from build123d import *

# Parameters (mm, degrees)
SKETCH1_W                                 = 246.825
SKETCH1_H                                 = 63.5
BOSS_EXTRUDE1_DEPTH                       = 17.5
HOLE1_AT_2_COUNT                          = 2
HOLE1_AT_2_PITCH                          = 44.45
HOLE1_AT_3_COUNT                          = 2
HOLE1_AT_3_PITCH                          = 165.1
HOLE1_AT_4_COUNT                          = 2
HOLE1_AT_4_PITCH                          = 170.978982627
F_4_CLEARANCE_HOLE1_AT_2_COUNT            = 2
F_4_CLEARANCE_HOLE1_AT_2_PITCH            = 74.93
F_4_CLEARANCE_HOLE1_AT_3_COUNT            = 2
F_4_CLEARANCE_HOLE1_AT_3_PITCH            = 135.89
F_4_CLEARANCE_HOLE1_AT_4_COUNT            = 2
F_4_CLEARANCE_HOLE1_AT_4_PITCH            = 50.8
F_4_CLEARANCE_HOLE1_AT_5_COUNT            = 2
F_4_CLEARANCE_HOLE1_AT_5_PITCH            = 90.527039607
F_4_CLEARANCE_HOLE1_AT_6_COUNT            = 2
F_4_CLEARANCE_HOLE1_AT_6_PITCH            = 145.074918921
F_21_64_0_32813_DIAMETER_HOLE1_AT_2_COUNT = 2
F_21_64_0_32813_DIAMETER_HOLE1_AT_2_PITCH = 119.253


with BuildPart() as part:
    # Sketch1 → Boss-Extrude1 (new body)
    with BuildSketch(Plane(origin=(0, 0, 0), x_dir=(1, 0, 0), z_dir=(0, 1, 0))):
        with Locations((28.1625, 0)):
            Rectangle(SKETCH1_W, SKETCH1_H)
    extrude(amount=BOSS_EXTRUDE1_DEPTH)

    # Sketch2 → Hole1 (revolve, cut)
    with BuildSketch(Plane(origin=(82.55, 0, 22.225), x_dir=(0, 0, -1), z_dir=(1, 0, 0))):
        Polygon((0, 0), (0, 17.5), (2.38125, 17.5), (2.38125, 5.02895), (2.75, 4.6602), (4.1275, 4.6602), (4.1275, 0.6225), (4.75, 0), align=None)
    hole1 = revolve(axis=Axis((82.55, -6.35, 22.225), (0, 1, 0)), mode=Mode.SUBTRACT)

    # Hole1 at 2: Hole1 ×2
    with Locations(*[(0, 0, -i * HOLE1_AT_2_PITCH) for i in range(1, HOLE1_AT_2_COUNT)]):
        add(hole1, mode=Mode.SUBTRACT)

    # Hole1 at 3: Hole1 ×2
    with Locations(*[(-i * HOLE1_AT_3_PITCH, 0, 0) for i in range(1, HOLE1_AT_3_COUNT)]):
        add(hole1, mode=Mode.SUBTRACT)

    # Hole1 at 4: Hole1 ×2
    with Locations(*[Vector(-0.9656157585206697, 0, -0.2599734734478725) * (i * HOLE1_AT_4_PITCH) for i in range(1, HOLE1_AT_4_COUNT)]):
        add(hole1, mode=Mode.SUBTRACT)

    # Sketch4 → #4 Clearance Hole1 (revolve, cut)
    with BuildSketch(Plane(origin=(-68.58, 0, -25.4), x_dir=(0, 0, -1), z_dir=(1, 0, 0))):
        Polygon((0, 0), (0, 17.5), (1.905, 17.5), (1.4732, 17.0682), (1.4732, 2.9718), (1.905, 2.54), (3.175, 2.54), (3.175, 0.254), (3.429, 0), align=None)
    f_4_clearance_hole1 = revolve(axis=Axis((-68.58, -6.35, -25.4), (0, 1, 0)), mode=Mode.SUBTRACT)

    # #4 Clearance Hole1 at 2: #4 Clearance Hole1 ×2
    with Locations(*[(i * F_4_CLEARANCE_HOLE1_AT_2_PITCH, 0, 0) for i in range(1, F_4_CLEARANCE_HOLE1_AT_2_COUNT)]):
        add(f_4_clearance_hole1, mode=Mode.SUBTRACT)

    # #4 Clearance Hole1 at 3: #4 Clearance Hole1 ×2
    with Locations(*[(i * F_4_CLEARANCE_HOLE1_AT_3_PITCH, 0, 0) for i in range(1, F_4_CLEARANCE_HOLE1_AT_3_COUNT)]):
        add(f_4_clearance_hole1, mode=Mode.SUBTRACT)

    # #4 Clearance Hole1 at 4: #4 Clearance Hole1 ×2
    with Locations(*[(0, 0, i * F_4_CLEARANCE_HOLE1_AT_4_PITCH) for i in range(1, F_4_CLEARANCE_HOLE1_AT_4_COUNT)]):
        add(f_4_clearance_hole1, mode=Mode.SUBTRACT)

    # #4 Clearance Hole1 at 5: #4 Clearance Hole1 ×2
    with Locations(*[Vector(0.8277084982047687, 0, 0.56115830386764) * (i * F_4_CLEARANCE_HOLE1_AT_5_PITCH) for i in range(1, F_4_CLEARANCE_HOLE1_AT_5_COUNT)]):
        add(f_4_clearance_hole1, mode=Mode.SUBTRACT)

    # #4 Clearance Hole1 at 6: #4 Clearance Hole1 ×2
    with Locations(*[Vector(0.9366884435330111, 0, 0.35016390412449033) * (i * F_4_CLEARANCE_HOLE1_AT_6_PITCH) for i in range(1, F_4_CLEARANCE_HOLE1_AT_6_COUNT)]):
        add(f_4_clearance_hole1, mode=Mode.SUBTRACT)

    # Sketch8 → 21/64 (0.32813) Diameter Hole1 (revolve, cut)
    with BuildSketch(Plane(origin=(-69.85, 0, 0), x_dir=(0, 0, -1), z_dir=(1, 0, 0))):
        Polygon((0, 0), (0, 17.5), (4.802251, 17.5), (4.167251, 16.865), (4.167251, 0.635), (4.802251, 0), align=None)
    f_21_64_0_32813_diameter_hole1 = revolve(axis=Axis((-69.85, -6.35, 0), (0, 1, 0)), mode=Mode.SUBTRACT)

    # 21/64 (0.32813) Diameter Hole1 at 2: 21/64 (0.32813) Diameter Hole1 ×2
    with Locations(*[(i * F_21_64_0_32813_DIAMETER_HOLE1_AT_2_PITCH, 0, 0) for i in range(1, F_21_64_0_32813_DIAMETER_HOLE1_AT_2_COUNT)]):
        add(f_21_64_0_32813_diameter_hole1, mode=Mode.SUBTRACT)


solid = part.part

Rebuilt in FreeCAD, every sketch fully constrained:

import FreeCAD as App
import Part
import Sketcher
from FreeCAD import Vector
Q = App.Units.Quantity


def add_polygon(sketch, points):
    """Adds a closed chain of lines whose ends are joined by coincident constraints."""
    first, n = sketch.GeometryCount, len(points)
    for a, b in zip(points, points[1:] + points[:1]):
        sketch.addGeometry(Part.LineSegment(App.Vector(*a, 0), App.Vector(*b, 0)), False)
    for i in range(n):
        sketch.addConstraint(Sketcher.Constraint("Coincident", first + i, 2, first + (i + 1) % n, 1))

doc = App.newDocument("Part")
body = doc.addObject("PartDesign::Body", "Body")

sketch1 = doc.addObject("Sketcher::SketchObject", "Sketch")
body.addObject(sketch1)
sketch1.AttachmentSupport = (doc.XZ_Plane, [""])
sketch1.MapMode = "FlatFace"
add_polygon(sketch1, [(-95.25, -31.75), (-95.25, 31.75), (151.575, 31.75), (151.575, -31.75)])
sketch1.addConstraint([
    Sketcher.Constraint("Vertical", 0),
    Sketcher.Constraint("Horizontal", 1),
    Sketcher.Constraint("Vertical", 2),
    Sketcher.Constraint("Horizontal", 3),
    Sketcher.Constraint("DistanceY", 0, 1, 0, 2, Q("2.5 in")),
    Sketcher.Constraint("DistanceX", 0, 2, -1, 1, Q("3.75 in")),
    Sketcher.Constraint("DistanceY", -1, 1, 0, 2, Q("1.25 in")),
    Sketcher.Constraint("DistanceX", 1, 1, 1, 2, Q("246.825 mm")),
])
pad1 = doc.addObject("PartDesign::Pad", "Pad")
body.addObject(pad1)
pad1.Profile = sketch1
pad1.Length = 17.5
pad1.Reversed = True

sketch2 = doc.addObject("Sketcher::SketchObject", "Sketch001")
body.addObject(sketch2)
sketch2.AttachmentSupport = (doc.YZ_Plane, [""])
sketch2.MapMode = "FlatFace"
sketch2.AttachmentOffset = App.Placement(Vector(0, 0, 3.25 * 25.4), App.Rotation())
add_polygon(sketch2, [(17.5, 22.225), (0, 22.225), (0, 17.475), (0.6225, 18.0975), (4.6602, 18.0975), (4.6602, 19.475), (5.02895, 19.84375), (17.5, 19.84375)])
sketch2.addGeometry(Part.LineSegment(Vector(0, 22.225, 0), Vector(17.5, 22.225, 0)), True)
sketch2.addConstraint([
    Sketcher.Constraint("Horizontal", 0),
    Sketcher.Constraint("Vertical", 1),
    Sketcher.Constraint("Horizontal", 3),
    Sketcher.Constraint("Vertical", 4),
    Sketcher.Constraint("Horizontal", 6),
    Sketcher.Constraint("Vertical", 7),
    Sketcher.Constraint("Horizontal", 8),
    Sketcher.Constraint("Coincident", 8, 1, 0, 2),
    Sketcher.Constraint("PointOnObject", 0, 2, -2),
    Sketcher.Constraint("Parallel", 2, 5),
    Sketcher.Constraint("Vertical", 6, 2, 8, 2),
    Sketcher.Constraint("Angle", 2, Q("45 deg")),
    Sketcher.Constraint("DistanceY", 7, 1, 7, 2, Q("0.09375 in")),
    Sketcher.Constraint("DistanceY", -1, 1, 0, 2, Q("0.875 in")),
    Sketcher.Constraint("DistanceX", 0, 2, 0, 1, Q("17.5 mm")),
    Sketcher.Constraint("DistanceX", 3, 1, 3, 2, Q("4.0377 mm")),
    Sketcher.Constraint("DistanceY", 1, 2, 1, 1, Q("4.75 mm")),
    Sketcher.Constraint("DistanceY", 4, 1, 4, 2, Q("1.3775 mm")),
    Sketcher.Constraint("DistanceY", -1, 1, 2, 2, Q("0.7125 in")),
])
groove = doc.addObject("PartDesign::Groove", "Groove")
body.addObject(groove)
groove.Profile = sketch2
groove.ReferenceAxis = (sketch2, ["Axis0"])
groove.Angle = 360
doc.recompute()

linearpattern = doc.addObject("PartDesign::LinearPattern", "LinearPattern")
body.addObject(linearpattern)
linearpattern.Originals = [groove]
linearpattern.Direction = (doc.Z_Axis, [""])
linearpattern.Mode = "offset"
linearpattern.Offset = Q("1.75 in")
linearpattern.Occurrences = 2
linearpattern.Reversed = True
body.Tip = linearpattern
doc.recompute()

linearpattern2 = doc.addObject("PartDesign::LinearPattern", "LinearPattern001")
body.addObject(linearpattern2)
linearpattern2.Originals = [groove]
linearpattern2.Direction = (doc.X_Axis, [""])
linearpattern2.Mode = "offset"
linearpattern2.Offset = Q("6.5 in")
linearpattern2.Occurrences = 2
linearpattern2.Reversed = True
body.Tip = linearpattern2
doc.recompute()

datumline = doc.addObject("PartDesign::Line", "DatumLine")
body.addObject(datumline)
datumline.Placement = App.Placement(Vector(0, 0, 0), App.Rotation(Vector(0, 0, 1), Vector(-0.965615759, 0, -0.259973473)))
linearpattern3 = doc.addObject("PartDesign::LinearPattern", "LinearPattern002")
body.addObject(linearpattern3)
linearpattern3.Originals = [groove]
linearpattern3.Direction = (datumline, [""])
linearpattern3.Mode = "offset"
linearpattern3.Offset = 170.978983
linearpattern3.Occurrences = 2
body.Tip = linearpattern3

sketch3 = doc.addObject("Sketcher::SketchObject", "Sketch002")
body.addObject(sketch3)
sketch3.AttachmentSupport = (doc.YZ_Plane, [""])
sketch3.MapMode = "FlatFace"
sketch3.AttachmentOffset = App.Placement(Vector(0, 0, -2.7 * 25.4), App.Rotation())
add_polygon(sketch3, [(17.5, -25.4), (0, -25.4), (0, -28.829), (0.254, -28.575), (2.54, -28.575), (2.54, -27.305), (2.9718, -26.8732), (17.0682, -26.8732), (17.5, -27.305)])
sketch3.addGeometry(Part.LineSegment(Vector(0, -25.4, 0), Vector(17.5, -25.4, 0)), True)
sketch3.addConstraint([
    Sketcher.Constraint("Horizontal", 0),
    Sketcher.Constraint("Vertical", 1),
    Sketcher.Constraint("Horizontal", 3),
    Sketcher.Constraint("Vertical", 4),
    Sketcher.Constraint("Horizontal", 6),
    Sketcher.Constraint("Vertical", 8),
    Sketcher.Constraint("Horizontal", 9),
    Sketcher.Constraint("Coincident", 9, 1, 0, 2),
    Sketcher.Constraint("PointOnObject", 0, 2, -2),
    Sketcher.Constraint("Parallel", 2, 5),
    Sketcher.Constraint("Perpendicular", 5, 7),
    Sketcher.Constraint("Horizontal", 4, 2, 7, 2),
    Sketcher.Constraint("Vertical", 7, 2, 9, 2),
    Sketcher.Constraint("Equal", 5, 7),
    Sketcher.Constraint("DistanceY", 0, 2, -1, 1, Q("1 in")),
    Sketcher.Constraint("DistanceX", 3, 1, 3, 2, Q("0.09 in")),
    Sketcher.Constraint("DistanceY", 4, 1, 4, 2, Q("0.05 in")),
    Sketcher.Constraint("DistanceX", -1, 1, 3, 2, Q("0.1 in")),
    Sketcher.Constraint("DistanceY", 1, 2, 1, 1, Q("0.135 in")),
    Sketcher.Constraint("DistanceX", -1, 1, 5, 2, Q("0.117 in")),
    Sketcher.Constraint("DistanceX", 0, 2, 0, 1, Q("17.5 mm")),
])
groove2 = doc.addObject("PartDesign::Groove", "Groove001")
body.addObject(groove2)
groove2.Profile = sketch3
groove2.ReferenceAxis = (sketch3, ["Axis0"])
groove2.Angle = 360
doc.recompute()

linearpattern4 = doc.addObject("PartDesign::LinearPattern", "LinearPattern003")
body.addObject(linearpattern4)
linearpattern4.Originals = [groove2]
linearpattern4.Direction = (doc.X_Axis, [""])
linearpattern4.Mode = "offset"
linearpattern4.Offset = Q("2.95 in")
linearpattern4.Occurrences = 2
body.Tip = linearpattern4
doc.recompute()

linearpattern5 = doc.addObject("PartDesign::LinearPattern", "LinearPattern004")
body.addObject(linearpattern5)
linearpattern5.Originals = [groove2]
linearpattern5.Direction = (doc.X_Axis, [""])
linearpattern5.Mode = "offset"
linearpattern5.Offset = Q("5.35 in")
linearpattern5.Occurrences = 2
body.Tip = linearpattern5
doc.recompute()

linearpattern6 = doc.addObject("PartDesign::LinearPattern", "LinearPattern005")
body.addObject(linearpattern6)
linearpattern6.Originals = [groove2]
linearpattern6.Direction = (doc.Z_Axis, [""])
linearpattern6.Mode = "offset"
linearpattern6.Offset = Q("2 in")
linearpattern6.Occurrences = 2
body.Tip = linearpattern6
doc.recompute()

datumline2 = doc.addObject("PartDesign::Line", "DatumLine001")
body.addObject(datumline2)
datumline2.Placement = App.Placement(Vector(0, 0, 0), App.Rotation(Vector(0, 0, 1), Vector(0.827708498, 0, 0.561158304)))
linearpattern7 = doc.addObject("PartDesign::LinearPattern", "LinearPattern006")
body.addObject(linearpattern7)
linearpattern7.Originals = [groove2]
linearpattern7.Direction = (datumline2, [""])
linearpattern7.Mode = "offset"
linearpattern7.Offset = 90.52704
linearpattern7.Occurrences = 2
body.Tip = linearpattern7
doc.recompute()

datumline3 = doc.addObject("PartDesign::Line", "DatumLine002")
body.addObject(datumline3)
datumline3.Placement = App.Placement(Vector(0, 0, 0), App.Rotation(Vector(0, 0, 1), Vector(0.936688444, 0, 0.350163904)))
linearpattern8 = doc.addObject("PartDesign::LinearPattern", "LinearPattern007")
body.addObject(linearpattern8)
linearpattern8.Originals = [groove2]
linearpattern8.Direction = (datumline3, [""])
linearpattern8.Mode = "offset"
linearpattern8.Offset = 145.074919
linearpattern8.Occurrences = 2
body.Tip = linearpattern8

sketch4 = doc.addObject("Sketcher::SketchObject", "Sketch003")
body.addObject(sketch4)
sketch4.AttachmentSupport = (doc.YZ_Plane, [""])
sketch4.MapMode = "FlatFace"
sketch4.AttachmentOffset = App.Placement(Vector(0, 0, -2.75 * 25.4), App.Rotation())
add_polygon(sketch4, [(17.5, 0), (0, 0), (0, -4.802251), (0.635, -4.167251), (16.865, -4.167251), (17.5, -4.802251)])
sketch4.addConstraint([
    Sketcher.Constraint("Horizontal", 0),
    Sketcher.Constraint("Vertical", 1),
    Sketcher.Constraint("Horizontal", 3),
    Sketcher.Constraint("Vertical", 5),
    Sketcher.Constraint("Coincident", 0, 2, -1, 1),
    Sketcher.Constraint("Perpendicular", 2, 4),
    Sketcher.Constraint("Horizontal", 1, 2, 4, 2),
    Sketcher.Constraint("Equal", 2, 4),
    Sketcher.Constraint("DistanceX", -1, 1, 2, 2, Q("0.025 in")),
    Sketcher.Constraint("DistanceX", 0, 2, 0, 1, Q("17.5 mm")),
    Sketcher.Constraint("DistanceY", 1, 2, 1, 1, Q("4.802251 mm")),
])
groove3 = doc.addObject("PartDesign::Groove", "Groove002")
body.addObject(groove3)
groove3.Profile = sketch4
groove3.ReferenceAxis = (sketch4, ["H_Axis"])
groove3.Angle = 360
doc.recompute()

linearpattern9 = doc.addObject("PartDesign::LinearPattern", "LinearPattern008")
body.addObject(linearpattern9)
linearpattern9.Originals = [groove3]
linearpattern9.Direction = (doc.X_Axis, [""])
linearpattern9.Mode = "offset"
linearpattern9.Offset = Q("4.695 in")
linearpattern9.Occurrences = 2
body.Tip = linearpattern9

doc.recompute()
